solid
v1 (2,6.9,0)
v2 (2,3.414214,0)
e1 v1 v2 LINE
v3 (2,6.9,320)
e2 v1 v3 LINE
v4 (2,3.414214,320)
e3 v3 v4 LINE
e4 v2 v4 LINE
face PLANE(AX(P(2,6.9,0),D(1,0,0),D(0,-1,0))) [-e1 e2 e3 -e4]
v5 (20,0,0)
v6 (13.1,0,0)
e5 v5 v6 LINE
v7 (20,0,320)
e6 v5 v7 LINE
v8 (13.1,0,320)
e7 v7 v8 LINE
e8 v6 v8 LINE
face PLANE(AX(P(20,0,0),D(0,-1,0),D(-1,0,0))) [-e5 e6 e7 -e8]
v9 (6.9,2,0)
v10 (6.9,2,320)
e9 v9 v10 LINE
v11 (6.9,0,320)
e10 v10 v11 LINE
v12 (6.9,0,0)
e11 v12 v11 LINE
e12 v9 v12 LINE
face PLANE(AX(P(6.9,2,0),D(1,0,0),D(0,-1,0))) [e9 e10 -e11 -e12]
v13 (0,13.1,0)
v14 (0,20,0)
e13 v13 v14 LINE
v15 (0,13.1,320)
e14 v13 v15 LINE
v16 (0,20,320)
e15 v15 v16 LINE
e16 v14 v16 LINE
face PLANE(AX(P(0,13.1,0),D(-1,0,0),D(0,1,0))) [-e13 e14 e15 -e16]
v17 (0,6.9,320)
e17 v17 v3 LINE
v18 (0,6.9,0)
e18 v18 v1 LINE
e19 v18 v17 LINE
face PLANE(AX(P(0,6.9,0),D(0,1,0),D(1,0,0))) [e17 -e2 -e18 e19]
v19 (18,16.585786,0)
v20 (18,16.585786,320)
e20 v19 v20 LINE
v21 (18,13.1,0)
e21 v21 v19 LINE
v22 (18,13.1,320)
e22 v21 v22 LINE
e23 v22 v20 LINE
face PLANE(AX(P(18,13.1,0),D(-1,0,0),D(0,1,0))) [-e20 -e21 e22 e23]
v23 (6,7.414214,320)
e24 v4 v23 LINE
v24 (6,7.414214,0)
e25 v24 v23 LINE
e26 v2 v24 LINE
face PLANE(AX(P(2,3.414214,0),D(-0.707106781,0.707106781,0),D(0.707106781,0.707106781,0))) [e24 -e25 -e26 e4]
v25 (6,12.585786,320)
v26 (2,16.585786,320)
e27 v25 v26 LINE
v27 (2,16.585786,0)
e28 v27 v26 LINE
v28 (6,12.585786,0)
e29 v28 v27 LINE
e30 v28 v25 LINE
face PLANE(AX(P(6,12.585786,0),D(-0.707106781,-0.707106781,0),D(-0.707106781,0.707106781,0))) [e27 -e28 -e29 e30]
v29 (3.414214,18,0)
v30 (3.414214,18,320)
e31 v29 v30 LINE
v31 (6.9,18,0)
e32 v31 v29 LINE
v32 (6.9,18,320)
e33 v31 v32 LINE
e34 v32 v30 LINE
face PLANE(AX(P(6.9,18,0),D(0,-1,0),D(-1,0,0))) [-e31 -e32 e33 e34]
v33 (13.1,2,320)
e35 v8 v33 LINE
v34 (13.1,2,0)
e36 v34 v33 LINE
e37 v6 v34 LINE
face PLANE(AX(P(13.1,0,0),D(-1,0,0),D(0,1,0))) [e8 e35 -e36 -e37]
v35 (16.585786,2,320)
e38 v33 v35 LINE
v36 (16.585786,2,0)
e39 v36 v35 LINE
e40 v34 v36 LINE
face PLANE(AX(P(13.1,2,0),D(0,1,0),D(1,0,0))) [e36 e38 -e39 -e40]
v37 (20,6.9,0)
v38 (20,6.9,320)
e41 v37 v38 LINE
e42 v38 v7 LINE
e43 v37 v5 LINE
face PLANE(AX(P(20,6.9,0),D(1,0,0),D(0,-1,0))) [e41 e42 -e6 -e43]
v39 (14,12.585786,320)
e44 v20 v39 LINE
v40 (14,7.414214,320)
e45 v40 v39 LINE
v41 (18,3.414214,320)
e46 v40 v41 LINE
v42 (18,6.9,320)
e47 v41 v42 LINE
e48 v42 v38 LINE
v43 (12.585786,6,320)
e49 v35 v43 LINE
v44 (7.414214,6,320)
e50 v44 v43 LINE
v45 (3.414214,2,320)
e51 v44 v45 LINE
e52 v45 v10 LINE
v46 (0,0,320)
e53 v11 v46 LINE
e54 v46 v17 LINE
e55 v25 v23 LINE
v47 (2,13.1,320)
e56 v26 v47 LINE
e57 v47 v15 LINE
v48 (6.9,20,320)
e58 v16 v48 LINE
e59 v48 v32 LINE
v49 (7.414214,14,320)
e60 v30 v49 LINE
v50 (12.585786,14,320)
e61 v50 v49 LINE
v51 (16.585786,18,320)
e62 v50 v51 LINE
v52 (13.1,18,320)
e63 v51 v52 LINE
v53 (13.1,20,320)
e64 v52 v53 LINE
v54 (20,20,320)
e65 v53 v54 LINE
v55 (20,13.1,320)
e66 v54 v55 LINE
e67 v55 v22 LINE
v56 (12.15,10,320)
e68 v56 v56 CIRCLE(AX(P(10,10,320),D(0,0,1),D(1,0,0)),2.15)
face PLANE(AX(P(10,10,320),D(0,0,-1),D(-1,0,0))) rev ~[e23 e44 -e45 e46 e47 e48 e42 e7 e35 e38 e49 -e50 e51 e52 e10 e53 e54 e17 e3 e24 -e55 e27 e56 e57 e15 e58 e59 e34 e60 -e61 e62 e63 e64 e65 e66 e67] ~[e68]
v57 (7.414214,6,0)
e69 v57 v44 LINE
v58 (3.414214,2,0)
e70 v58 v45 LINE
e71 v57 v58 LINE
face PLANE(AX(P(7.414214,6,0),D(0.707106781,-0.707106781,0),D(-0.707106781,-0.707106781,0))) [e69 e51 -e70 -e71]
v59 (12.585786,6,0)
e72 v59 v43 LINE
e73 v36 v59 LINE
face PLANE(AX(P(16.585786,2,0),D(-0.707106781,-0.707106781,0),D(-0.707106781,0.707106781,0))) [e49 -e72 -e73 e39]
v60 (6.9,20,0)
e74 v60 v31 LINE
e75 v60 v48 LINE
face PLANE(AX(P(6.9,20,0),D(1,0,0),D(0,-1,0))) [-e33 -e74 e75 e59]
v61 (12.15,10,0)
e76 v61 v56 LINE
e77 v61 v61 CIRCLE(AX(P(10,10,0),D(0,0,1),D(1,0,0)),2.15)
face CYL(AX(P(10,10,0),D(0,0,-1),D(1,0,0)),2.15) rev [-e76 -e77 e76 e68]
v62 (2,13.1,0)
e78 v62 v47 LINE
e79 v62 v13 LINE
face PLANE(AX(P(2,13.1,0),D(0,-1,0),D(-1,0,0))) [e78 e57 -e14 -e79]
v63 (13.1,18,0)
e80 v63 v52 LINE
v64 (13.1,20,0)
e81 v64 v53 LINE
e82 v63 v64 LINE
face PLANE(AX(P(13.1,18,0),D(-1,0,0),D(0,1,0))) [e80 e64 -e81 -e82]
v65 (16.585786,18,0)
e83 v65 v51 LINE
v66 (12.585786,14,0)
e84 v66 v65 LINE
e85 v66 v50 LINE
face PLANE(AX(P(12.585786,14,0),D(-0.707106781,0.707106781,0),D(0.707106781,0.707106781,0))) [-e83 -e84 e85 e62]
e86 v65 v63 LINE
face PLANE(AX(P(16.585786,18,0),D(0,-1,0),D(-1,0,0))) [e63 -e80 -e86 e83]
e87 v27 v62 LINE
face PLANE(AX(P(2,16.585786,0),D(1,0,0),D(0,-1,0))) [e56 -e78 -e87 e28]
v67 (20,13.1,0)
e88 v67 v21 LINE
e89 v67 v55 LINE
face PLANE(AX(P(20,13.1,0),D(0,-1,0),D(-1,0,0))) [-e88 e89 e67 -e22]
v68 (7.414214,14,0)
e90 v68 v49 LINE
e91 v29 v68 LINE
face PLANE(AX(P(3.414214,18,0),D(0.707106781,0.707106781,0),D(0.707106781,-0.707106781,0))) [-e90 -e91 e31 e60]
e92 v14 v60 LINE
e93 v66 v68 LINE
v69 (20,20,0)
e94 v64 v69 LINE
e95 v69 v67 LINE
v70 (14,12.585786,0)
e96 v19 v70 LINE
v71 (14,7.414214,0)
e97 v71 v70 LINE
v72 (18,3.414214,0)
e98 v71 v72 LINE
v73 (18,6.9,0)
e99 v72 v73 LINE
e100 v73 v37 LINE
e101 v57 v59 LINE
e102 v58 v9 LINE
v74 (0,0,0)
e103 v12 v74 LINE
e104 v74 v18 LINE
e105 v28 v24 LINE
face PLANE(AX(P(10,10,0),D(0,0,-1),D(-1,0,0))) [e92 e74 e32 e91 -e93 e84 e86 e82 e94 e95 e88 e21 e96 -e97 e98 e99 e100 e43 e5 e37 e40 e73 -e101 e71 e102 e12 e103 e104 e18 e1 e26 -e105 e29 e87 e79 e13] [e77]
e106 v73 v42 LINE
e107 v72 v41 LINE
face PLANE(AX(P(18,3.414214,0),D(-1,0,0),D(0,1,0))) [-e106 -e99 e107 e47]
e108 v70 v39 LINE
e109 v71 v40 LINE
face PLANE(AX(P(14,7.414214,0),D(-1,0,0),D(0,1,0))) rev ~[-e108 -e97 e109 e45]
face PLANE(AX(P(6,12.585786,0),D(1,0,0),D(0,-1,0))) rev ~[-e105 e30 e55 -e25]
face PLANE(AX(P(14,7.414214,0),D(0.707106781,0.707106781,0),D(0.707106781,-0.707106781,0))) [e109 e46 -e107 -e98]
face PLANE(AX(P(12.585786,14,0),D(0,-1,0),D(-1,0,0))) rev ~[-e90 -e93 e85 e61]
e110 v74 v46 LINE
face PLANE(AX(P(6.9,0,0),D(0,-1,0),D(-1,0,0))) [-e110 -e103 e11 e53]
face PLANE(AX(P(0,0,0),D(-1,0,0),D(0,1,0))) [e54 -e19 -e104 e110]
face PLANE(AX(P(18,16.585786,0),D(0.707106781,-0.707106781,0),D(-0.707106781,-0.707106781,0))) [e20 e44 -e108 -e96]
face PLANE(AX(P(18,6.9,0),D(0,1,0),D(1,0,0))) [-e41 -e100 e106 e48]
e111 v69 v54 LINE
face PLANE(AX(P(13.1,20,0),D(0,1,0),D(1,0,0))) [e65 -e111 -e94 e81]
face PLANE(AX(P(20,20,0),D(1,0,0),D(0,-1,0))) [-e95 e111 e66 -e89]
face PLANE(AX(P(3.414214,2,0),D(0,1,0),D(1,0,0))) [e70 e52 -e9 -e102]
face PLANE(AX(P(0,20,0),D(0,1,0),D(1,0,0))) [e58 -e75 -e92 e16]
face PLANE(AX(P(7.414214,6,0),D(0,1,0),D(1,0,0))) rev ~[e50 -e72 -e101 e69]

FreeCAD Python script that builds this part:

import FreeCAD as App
import Part
import Sketcher
from FreeCAD import Vector
Q = App.Units.Quantity

doc = App.newDocument("Part")
params = doc.addObject("Spreadsheet::Sheet", "Params")
for row, (alias, value) in enumerate([
    ("sketch1_diameter", "4.3 mm"),
    ("sketch1_width", "2 mm"),
    ("sketch1_width2", "6.9 mm"),
    ("pad1_length", "320 mm"),
], start=1):
    params.set(f"A{row}", alias)
    params.set(f"B{row}", "=" + value)
    params.setAlias(f"B{row}", alias)

body = doc.addObject("PartDesign::Body", "Body")

sketch1 = body.newObject("Sketcher::SketchObject", "Sketch")
sketch1.AttachmentSupport = (doc.getObject("XY_Plane"), [""])
sketch1.MapMode = "FlatFace"
sketch1.addGeometry([
    Part.LineSegment(Vector(18, 13.1, 0), Vector(20, 13.1, 0)),
    Part.LineSegment(Vector(20, 13.1, 0), Vector(20, 20, 0)),
    Part.LineSegment(Vector(20, 20, 0), Vector(13.1, 20, 0)),
    Part.LineSegment(Vector(13.1, 20, 0), Vector(13.1, 18, 0)),
    Part.LineSegment(Vector(13.1, 18, 0), Vector(16.585786, 18, 0)),
    Part.LineSegment(Vector(16.585786, 18, 0), Vector(12.585786, 14, 0)),
    Part.LineSegment(Vector(12.585786, 14, 0), Vector(7.414214, 14, 0)),
    Part.LineSegment(Vector(7.414214, 14, 0), Vector(3.414214, 18, 0)),
    Part.LineSegment(Vector(3.414214, 18, 0), Vector(6.9, 18, 0)),
    Part.LineSegment(Vector(6.9, 18, 0), Vector(6.9, 20, 0)),
    Part.LineSegment(Vector(6.9, 20, 0), Vector(0, 20, 0)),
    Part.LineSegment(Vector(0, 20, 0), Vector(0, 13.1, 0)),
    Part.LineSegment(Vector(0, 13.1, 0), Vector(2, 13.1, 0)),
    Part.LineSegment(Vector(2, 13.1, 0), Vector(2, 16.585786, 0)),
    Part.LineSegment(Vector(2, 16.585786, 0), Vector(6, 12.585786, 0)),
    Part.LineSegment(Vector(6, 12.585786, 0), Vector(6, 7.414214, 0)),
    Part.LineSegment(Vector(6, 7.414214, 0), Vector(2, 3.414214, 0)),
    Part.LineSegment(Vector(2, 3.414214, 0), Vector(2, 6.9, 0)),
    Part.LineSegment(Vector(2, 6.9, 0), Vector(0, 6.9, 0)),
    Part.LineSegment(Vector(0, 6.9, 0), Vector(0, 0, 0)),
    Part.LineSegment(Vector(0, 0, 0), Vector(6.9, 0, 0)),
    Part.LineSegment(Vector(6.9, 0, 0), Vector(6.9, 2, 0)),
    Part.LineSegment(Vector(6.9, 2, 0), Vector(3.414214, 2, 0)),
    Part.LineSegment(Vector(3.414214, 2, 0), Vector(7.414214, 6, 0)),
    Part.LineSegment(Vector(7.414214, 6, 0), Vector(12.585786, 6, 0)),
    Part.LineSegment(Vector(12.585786, 6, 0), Vector(16.585786, 2, 0)),
    Part.LineSegment(Vector(16.585786, 2, 0), Vector(13.1, 2, 0)),
    Part.LineSegment(Vector(13.1, 2, 0), Vector(13.1, 0, 0)),
    Part.LineSegment(Vector(13.1, 0, 0), Vector(20, 0, 0)),
    Part.LineSegment(Vector(20, 0, 0), Vector(20, 6.9, 0)),
    Part.LineSegment(Vector(20, 6.9, 0), Vector(18, 6.9, 0)),
    Part.LineSegment(Vector(18, 6.9, 0), Vector(18, 3.414214, 0)),
    Part.LineSegment(Vector(18, 3.414214, 0), Vector(14, 7.414214, 0)),
    Part.LineSegment(Vector(14, 7.414214, 0), Vector(14, 12.585786, 0)),
    Part.LineSegment(Vector(14, 12.585786, 0), Vector(18, 16.585786, 0)),
    Part.LineSegment(Vector(18, 16.585786, 0), Vector(18, 13.1, 0)),
    Part.Circle(Vector(10, 10, 0), Vector(0, 0, 1), 2.15),
], False)
sketch1.addConstraint([
    Sketcher.Constraint("Coincident", 0, 2, 1, 1),
    Sketcher.Constraint("Coincident", 1, 2, 2, 1),
    Sketcher.Constraint("Coincident", 2, 2, 3, 1),
    Sketcher.Constraint("Coincident", 3, 2, 4, 1),
    Sketcher.Constraint("Coincident", 4, 2, 5, 1),
    Sketcher.Constraint("Coincident", 5, 2, 6, 1),
    Sketcher.Constraint("Coincident", 6, 2, 7, 1),
    Sketcher.Constraint("Coincident", 7, 2, 8, 1),
    Sketcher.Constraint("Coincident", 8, 2, 9, 1),
    Sketcher.Constraint("Coincident", 9, 2, 10, 1),
    Sketcher.Constraint("Coincident", 10, 2, 11, 1),
    Sketcher.Constraint("Coincident", 11, 2, 12, 1),
    Sketcher.Constraint("Coincident", 12, 2, 13, 1),
    Sketcher.Constraint("Coincident", 13, 2, 14, 1),
    Sketcher.Constraint("Coincident", 14, 2, 15, 1),
    Sketcher.Constraint("Coincident", 15, 2, 16, 1),
    Sketcher.Constraint("Coincident", 16, 2, 17, 1),
    Sketcher.Constraint("Coincident", 17, 2, 18, 1),
    Sketcher.Constraint("Coincident", 18, 2, 19, 1),
    Sketcher.Constraint("Coincident", 19, 2, 20, 1),
    Sketcher.Constraint("Coincident", 20, 2, 21, 1),
    Sketcher.Constraint("Coincident", 21, 2, 22, 1),
    Sketcher.Constraint("Coincident", 22, 2, 23, 1),
    Sketcher.Constraint("Coincident", 23, 2, 24, 1),
    Sketcher.Constraint("Coincident", 24, 2, 25, 1),
    Sketcher.Constraint("Coincident", 25, 2, 26, 1),
    Sketcher.Constraint("Coincident", 26, 2, 27, 1),
    Sketcher.Constraint("Coincident", 27, 2, 28, 1),
    Sketcher.Constraint("Coincident", 28, 2, 29, 1),
    Sketcher.Constraint("Coincident", 29, 2, 30, 1),
    Sketcher.Constraint("Coincident", 30, 2, 31, 1),
    Sketcher.Constraint("Coincident", 31, 2, 32, 1),
    Sketcher.Constraint("Coincident", 32, 2, 33, 1),
    Sketcher.Constraint("Coincident", 33, 2, 34, 1),
    Sketcher.Constraint("Coincident", 34, 2, 35, 1),
    Sketcher.Constraint("Coincident", 35, 2, 0, 1),
    Sketcher.Constraint("Horizontal", 0),
    Sketcher.Constraint("Vertical", 1),
    Sketcher.Constraint("Horizontal", 2),
    Sketcher.Constraint("Vertical", 3),
    Sketcher.Constraint("Horizontal", 4),
    Sketcher.Constraint("Horizontal", 6),
    Sketcher.Constraint("Horizontal", 8),
    Sketcher.Constraint("Vertical", 9),
    Sketcher.Constraint("Horizontal", 10),
    Sketcher.Constraint("Vertical", 11),
    Sketcher.Constraint("Horizontal", 12),
    Sketcher.Constraint("Vertical", 13),
    Sketcher.Constraint("Vertical", 15),
    Sketcher.Constraint("Vertical", 17),
    Sketcher.Constraint("Horizontal", 18),
    Sketcher.Constraint("Vertical", 19),
    Sketcher.Constraint("Horizontal", 20),
    Sketcher.Constraint("Vertical", 21),
    Sketcher.Constraint("Horizontal", 22),
    Sketcher.Constraint("Horizontal", 24),
    Sketcher.Constraint("Horizontal", 26),
    Sketcher.Constraint("Vertical", 27),
    Sketcher.Constraint("Horizontal", 28),
    Sketcher.Constraint("Vertical", 29),
    Sketcher.Constraint("Horizontal", 30),
    Sketcher.Constraint("Vertical", 31),
    Sketcher.Constraint("Vertical", 33),
    Sketcher.Constraint("Vertical", 35),
    Sketcher.Constraint("Coincident", 19, 2, -1, 1),
    Sketcher.Constraint("PointOnObject", 10, 2, -2),
    Sketcher.Constraint("PointOnObject", 27, 2, -1),
    Sketcher.Constraint("Perpendicular", 5, 7),
    Sketcher.Constraint("Parallel", 7, 14),
    Sketcher.Constraint("Perpendicular", 14, 16),
    Sketcher.Constraint("Parallel", 16, 23),
    Sketcher.Constraint("Perpendicular", 23, 25),
    Sketcher.Constraint("Parallel", 25, 32),
    Sketcher.Constraint("Perpendicular", 32, 34),
    Sketcher.Constraint("Horizontal", 4, 2, 7, 2),
    Sketcher.Constraint("Horizontal", 2, 2, 9, 2),
    Sketcher.Constraint("Horizontal", 0, 2, 11, 2),
    Sketcher.Constraint("Horizontal", 22, 2, 25, 2),
    Sketcher.Constraint("Horizontal", 18, 2, 29, 2),
    Sketcher.Constraint("Horizontal", 16, 2, 31, 2),
    Sketcher.Constraint("Horizontal", 15, 2, 32, 2),
    Sketcher.Constraint("Horizontal", 14, 2, 33, 2),
    Sketcher.Constraint("Horizontal", 13, 2, 34, 2),
    Sketcher.Constraint("Vertical", 13, 2, 16, 2),
    Sketcher.Constraint("Vertical", 9, 2, 20, 2),
    Sketcher.Constraint("Vertical", 7, 2, 22, 2),
    Sketcher.Constraint("Vertical", 6, 2, 23, 2),
    Sketcher.Constraint("Vertical", 5, 2, 24, 2),
    Sketcher.Constraint("Vertical", 4, 2, 25, 2),
    Sketcher.Constraint("Vertical", 3, 2, 26, 2),
    Sketcher.Constraint("Vertical", 1, 2, 28, 2),
    Sketcher.Constraint("Equal", 4, 8),
    Sketcher.Constraint("Equal", 2, 10),
    Sketcher.Constraint("Equal", 0, 12),
    Sketcher.Constraint("Equal", 28, 1),
    Sketcher.Constraint("Equal", 30, 3),
    Sketcher.Constraint("Equal", 26, 13),
    Sketcher.Constraint("Equal", 24, 15),
    Sketcher.Constraint("Equal", 13, 17),
    Sketcher.Constraint("Equal", 11, 19),
    Sketcher.Constraint("Equal", 9, 21),
    Sketcher.Constraint("Equal", 7, 14),
    Sketcher.Constraint("Diameter", 36, Q("4.3 mm")),
    Sketcher.Constraint("DistanceX", 0, 1, 0, 2, Q("2 mm")),
    Sketcher.Constraint("DistanceX", 2, 2, 2, 1, Q("6.9 mm")),
    Sketcher.Constraint("DistanceX", -1, 1, 36, 3, Q("10 mm")),
    Sketcher.Constraint("DistanceY", -1, 1, 36, 3, Q("10 mm")),
    Sketcher.Constraint("DistanceX", -1, 1, 0, 2, Q("20 mm")),
    Sketcher.Constraint("DistanceY", -1, 1, 5, 2, Q("14 mm")),
    Sketcher.Constraint("DistanceX", 4, 1, 4, 2, Q("3.485786 mm")),
])
sketch1.setExpression("Constraints[102]", "Params.sketch1_diameter")
sketch1.setExpression("Constraints[103]", "Params.sketch1_width")
sketch1.setExpression("Constraints[104]", "Params.sketch1_width2")
pad1 = body.newObject("PartDesign::Pad", "Pad")
pad1.Profile = sketch1
pad1.setExpression("Length", "Params.pad1_length")

doc.recompute()
